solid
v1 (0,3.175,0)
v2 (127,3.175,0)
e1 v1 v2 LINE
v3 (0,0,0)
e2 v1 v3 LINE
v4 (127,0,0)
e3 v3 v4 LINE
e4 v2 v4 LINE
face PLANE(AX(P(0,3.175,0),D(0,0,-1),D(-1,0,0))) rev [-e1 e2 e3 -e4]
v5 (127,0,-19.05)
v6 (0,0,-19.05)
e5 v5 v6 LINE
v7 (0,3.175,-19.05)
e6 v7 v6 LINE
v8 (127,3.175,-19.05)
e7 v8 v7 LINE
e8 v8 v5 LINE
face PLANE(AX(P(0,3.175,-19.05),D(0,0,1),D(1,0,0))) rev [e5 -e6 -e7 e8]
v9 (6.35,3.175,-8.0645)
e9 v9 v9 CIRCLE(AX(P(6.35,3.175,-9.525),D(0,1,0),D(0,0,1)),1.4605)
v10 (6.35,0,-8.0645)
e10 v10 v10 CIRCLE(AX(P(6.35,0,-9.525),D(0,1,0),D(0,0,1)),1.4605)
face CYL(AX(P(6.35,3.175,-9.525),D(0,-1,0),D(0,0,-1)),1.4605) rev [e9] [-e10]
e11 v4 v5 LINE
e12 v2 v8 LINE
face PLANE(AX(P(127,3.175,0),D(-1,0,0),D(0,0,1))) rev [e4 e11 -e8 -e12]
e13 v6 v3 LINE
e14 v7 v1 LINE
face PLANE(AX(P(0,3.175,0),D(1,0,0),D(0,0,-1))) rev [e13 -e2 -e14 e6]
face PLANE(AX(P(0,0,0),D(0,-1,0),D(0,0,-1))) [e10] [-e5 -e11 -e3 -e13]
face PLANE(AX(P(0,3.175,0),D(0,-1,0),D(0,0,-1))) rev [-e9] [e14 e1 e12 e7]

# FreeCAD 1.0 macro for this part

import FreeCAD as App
import Part
import Sketcher

V = App.Vector
Q = App.Units.Quantity


def add_polygon(sketch, points):
    """Adds a closed chain of lines whose ends are joined by coincident constraints."""
    first, n = sketch.GeometryCount, len(points)
    for a, b in zip(points, points[1:] + points[:1]):
        sketch.addGeometry(Part.LineSegment(App.Vector(*a, 0), App.Vector(*b, 0)), False)
    for i in range(n):
        sketch.addConstraint(Sketcher.Constraint("Coincident", first + i, 2, first + (i + 1) % n, 1))

doc = App.newDocument("Part")
body = doc.addObject("PartDesign::Body", "Body")

# Sketch on XZ plane
sketch1 = body.newObject("Sketcher::SketchObject", "Sketch")
sketch1.AttachmentSupport = (doc.getObject("XZ_Plane"), [""])
sketch1.MapMode = "FlatFace"
add_polygon(sketch1, [(0, -19.1), (0, 0), (127, 0), (127, -19.1)])  # lines 0-3
sketch1.addGeometry(Part.Circle(V(6.3, -9.5, 0), V(0, 0, 1), 1.5), False)  # 4
sketch1.addConstraint(Sketcher.Constraint("Vertical", 0))
sketch1.addConstraint(Sketcher.Constraint("Horizontal", 1))
sketch1.addConstraint(Sketcher.Constraint("Vertical", 2))
sketch1.addConstraint(Sketcher.Constraint("Horizontal", 3))
sketch1.addConstraint(Sketcher.Constraint("Coincident", 0, 2, -1, 1))
sketch1.addConstraint(Sketcher.Constraint("DistanceX", 1, 1, 1, 2, Q("5 in")))
sketch1.addConstraint(Sketcher.Constraint("Diameter", 4, Q("0.115 in")))
sketch1.addConstraint(Sketcher.Constraint("DistanceY", 0, 1, 0, 2, Q("0.75 in")))
sketch1.addConstraint(Sketcher.Constraint("DistanceX", -1, 1, 4, 3, Q("0.25 in")))
sketch1.addConstraint(Sketcher.Constraint("DistanceY", 4, 3, -1, 1, Q("0.375 in")))
pad1 = body.newObject("PartDesign::Pad", "Pad")
pad1.Profile = sketch1
pad1.Length = Q("0.125 in")
pad1.Reversed = True

doc.recompute()
